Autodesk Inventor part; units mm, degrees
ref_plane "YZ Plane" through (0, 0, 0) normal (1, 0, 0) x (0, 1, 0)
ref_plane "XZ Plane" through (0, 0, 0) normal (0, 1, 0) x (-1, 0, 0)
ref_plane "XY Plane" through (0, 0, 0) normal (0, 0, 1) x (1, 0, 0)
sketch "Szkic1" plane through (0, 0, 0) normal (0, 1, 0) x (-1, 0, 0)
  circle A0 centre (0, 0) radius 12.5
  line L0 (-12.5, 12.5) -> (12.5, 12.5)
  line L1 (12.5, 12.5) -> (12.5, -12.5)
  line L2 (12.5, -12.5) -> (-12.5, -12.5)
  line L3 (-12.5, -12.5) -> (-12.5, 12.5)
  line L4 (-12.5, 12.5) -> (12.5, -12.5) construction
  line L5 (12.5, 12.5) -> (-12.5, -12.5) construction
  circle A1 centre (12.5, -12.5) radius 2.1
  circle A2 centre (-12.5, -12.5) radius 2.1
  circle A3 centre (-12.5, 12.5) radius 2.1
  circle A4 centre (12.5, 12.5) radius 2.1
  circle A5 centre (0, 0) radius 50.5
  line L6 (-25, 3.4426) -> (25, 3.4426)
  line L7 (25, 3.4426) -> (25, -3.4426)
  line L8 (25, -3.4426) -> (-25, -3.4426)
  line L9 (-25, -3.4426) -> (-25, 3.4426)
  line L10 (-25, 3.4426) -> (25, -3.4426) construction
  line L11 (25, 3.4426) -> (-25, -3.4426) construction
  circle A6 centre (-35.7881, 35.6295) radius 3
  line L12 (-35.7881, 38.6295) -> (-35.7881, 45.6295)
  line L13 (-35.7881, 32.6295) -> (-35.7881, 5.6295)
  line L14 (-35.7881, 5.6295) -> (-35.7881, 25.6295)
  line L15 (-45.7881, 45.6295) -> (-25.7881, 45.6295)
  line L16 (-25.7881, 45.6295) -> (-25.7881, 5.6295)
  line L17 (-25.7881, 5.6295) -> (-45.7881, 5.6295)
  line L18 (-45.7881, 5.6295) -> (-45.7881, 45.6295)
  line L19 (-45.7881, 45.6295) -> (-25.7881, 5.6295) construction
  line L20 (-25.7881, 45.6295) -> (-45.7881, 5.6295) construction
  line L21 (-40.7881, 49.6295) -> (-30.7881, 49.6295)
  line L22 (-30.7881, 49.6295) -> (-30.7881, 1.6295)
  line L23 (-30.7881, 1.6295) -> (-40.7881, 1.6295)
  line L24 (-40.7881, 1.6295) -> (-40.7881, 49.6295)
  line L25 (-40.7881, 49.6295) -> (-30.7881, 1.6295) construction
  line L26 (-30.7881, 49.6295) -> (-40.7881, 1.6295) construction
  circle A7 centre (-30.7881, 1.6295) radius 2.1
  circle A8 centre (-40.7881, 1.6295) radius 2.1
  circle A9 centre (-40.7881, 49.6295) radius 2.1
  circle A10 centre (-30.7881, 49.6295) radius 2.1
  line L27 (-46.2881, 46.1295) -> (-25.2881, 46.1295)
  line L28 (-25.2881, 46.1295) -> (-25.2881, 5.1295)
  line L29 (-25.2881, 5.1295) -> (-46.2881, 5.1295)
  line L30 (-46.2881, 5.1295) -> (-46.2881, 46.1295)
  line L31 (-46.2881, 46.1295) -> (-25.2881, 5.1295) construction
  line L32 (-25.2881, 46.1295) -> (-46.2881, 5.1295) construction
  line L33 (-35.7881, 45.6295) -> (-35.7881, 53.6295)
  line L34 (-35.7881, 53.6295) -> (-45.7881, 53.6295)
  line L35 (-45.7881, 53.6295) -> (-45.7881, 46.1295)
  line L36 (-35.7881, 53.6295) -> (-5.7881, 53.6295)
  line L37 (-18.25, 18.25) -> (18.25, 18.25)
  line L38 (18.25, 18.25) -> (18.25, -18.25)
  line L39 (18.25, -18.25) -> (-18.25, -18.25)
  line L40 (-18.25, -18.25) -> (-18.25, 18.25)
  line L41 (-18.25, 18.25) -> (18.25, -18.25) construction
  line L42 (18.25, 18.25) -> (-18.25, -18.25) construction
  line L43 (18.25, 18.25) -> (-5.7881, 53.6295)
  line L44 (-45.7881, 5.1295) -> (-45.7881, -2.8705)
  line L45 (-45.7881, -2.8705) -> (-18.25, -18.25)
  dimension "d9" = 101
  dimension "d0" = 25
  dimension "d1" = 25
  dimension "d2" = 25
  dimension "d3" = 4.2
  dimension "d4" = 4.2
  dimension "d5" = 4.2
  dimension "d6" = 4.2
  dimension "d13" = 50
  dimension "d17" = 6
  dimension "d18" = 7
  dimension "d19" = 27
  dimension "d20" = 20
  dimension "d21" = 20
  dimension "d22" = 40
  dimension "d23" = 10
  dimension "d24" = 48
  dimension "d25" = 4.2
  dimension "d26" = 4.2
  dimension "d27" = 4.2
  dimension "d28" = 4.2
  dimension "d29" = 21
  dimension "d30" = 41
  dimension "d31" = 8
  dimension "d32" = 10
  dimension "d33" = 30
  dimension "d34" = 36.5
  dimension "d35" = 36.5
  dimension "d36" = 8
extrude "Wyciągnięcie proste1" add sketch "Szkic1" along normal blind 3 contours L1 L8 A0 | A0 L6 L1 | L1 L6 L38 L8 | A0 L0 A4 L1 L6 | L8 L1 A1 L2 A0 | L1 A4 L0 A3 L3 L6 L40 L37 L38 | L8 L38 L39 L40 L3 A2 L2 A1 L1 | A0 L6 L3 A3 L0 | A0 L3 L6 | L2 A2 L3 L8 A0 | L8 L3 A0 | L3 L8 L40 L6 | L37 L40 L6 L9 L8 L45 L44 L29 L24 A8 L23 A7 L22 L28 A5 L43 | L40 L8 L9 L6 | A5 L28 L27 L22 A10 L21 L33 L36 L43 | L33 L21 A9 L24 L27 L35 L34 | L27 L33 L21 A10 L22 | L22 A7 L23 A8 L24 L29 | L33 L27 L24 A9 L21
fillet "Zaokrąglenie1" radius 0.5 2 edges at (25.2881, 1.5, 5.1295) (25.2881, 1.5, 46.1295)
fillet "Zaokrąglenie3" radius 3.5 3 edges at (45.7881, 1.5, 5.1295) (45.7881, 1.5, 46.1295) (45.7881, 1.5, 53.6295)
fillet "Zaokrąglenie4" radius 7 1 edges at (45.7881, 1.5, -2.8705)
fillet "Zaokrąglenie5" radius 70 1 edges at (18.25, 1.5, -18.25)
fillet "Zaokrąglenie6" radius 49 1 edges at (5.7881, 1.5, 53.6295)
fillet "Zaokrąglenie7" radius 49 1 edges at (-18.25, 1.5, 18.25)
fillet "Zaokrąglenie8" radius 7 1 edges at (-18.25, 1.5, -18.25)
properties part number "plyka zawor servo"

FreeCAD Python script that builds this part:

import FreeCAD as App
import Part
import Sketcher
from FreeCAD import Vector
Q = App.Units.Quantity


def edges_at(feature, points):
    """Names of the edges that pass closest to the given points."""
    edges = feature.Shape.Edges
    near = lambda p: min(range(len(edges)), key=lambda i: edges[i].distToShape(Part.Vertex(*p))[0])
    return sorted({f"Edge{near(p) + 1}" for p in points})

doc = App.newDocument("Part")
body = doc.addObject("PartDesign::Body", "Body")

# Sketch on XZ plane
sketch1 = body.newObject("Sketcher::SketchObject", "Sketch")
sketch1.AttachmentSupport = (doc.getObject("XZ_Plane"), [""])
sketch1.MapMode = "FlatFace"
sketch1.addGeometry(Part.LineSegment(Vector(-18.2, 18.2, 0), Vector(5.8, 53.6, 0)), False)
sketch1.addGeometry(Part.LineSegment(Vector(5.8, 53.6, 0), Vector(45.8, 53.6, 0)), False)
sketch1.addGeometry(Part.LineSegment(Vector(45.8, 53.6, 0), Vector(45.8, 46.1, 0)), False)
sketch1.addGeometry(Part.LineSegment(Vector(45.8, 46.1, 0), Vector(25.3, 46.1, 0)), False)
sketch1.addGeometry(Part.LineSegment(Vector(25.3, 46.1, 0), Vector(25.3, 5.1, 0)), False)
sketch1.addGeometry(Part.LineSegment(Vector(25.3, 5.1, 0), Vector(45.8, 5.1, 0)), False)
sketch1.addGeometry(Part.LineSegment(Vector(45.8, 5.1, 0), Vector(45.8, -2.9, 0)), False)
sketch1.addGeometry(Part.LineSegment(Vector(45.8, -2.9, 0), Vector(18.2, -18.2, 0)), False)
sketch1.addGeometry(Part.LineSegment(Vector(18.2, -18.2, 0), Vector(-18.2, -18.2, 0)), False)
sketch1.addGeometry(Part.LineSegment(Vector(-18.2, -18.2, 0), Vector(-18.2, 18.2, 0)), False)
sketch1.addGeometry(Part.Circle(Vector(0, 0, 0), Vector(0, 0, 1), 12.5), False)
sketch1.addGeometry(Part.Circle(Vector(-12.5, -12.5, 0), Vector(0, 0, 1), 2.1), False)
sketch1.addGeometry(Part.Circle(Vector(-12.5, 12.5, 0), Vector(0, 0, 1), 2.1), False)
sketch1.addGeometry(Part.Circle(Vector(12.5, 12.5, 0), Vector(0, 0, 1), 2.1), False)
sketch1.addGeometry(Part.Circle(Vector(12.5, -12.5, 0), Vector(0, 0, 1), 2.1), False)
sketch1.addGeometry(Part.Circle(Vector(40.8, 1.6, 0), Vector(0, 0, 1), 2.1), False)
sketch1.addGeometry(Part.Circle(Vector(30.8, 1.6, 0), Vector(0, 0, 1), 2.1), False)
sketch1.addGeometry(Part.Circle(Vector(30.8, 49.6, 0), Vector(0, 0, 1), 2.1), False)
sketch1.addGeometry(Part.Circle(Vector(40.8, 49.6, 0), Vector(0, 0, 1), 2.1), False)
sketch1.addConstraint(Sketcher.Constraint("Coincident", 0, 2, 1, 1))
sketch1.addConstraint(Sketcher.Constraint("Coincident", 1, 2, 2, 1))
sketch1.addConstraint(Sketcher.Constraint("Coincident", 2, 2, 3, 1))
sketch1.addConstraint(Sketcher.Constraint("Coincident", 3, 2, 4, 1))
sketch1.addConstraint(Sketcher.Constraint("Coincident", 4, 2, 5, 1))
sketch1.addConstraint(Sketcher.Constraint("Coincident", 5, 2, 6, 1))
sketch1.addConstraint(Sketcher.Constraint("Coincident", 6, 2, 7, 1))
sketch1.addConstraint(Sketcher.Constraint("Coincident", 7, 2, 8, 1))
sketch1.addConstraint(Sketcher.Constraint("Coincident", 8, 2, 9, 1))
sketch1.addConstraint(Sketcher.Constraint("Coincident", 9, 2, 0, 1))
sketch1.addConstraint(Sketcher.Constraint("Horizontal", 1))
sketch1.addConstraint(Sketcher.Constraint("Vertical", 2))
sketch1.addConstraint(Sketcher.Constraint("Horizontal", 3))
sketch1.addConstraint(Sketcher.Constraint("Vertical", 4))
sketch1.addConstraint(Sketcher.Constraint("Horizontal", 5))
sketch1.addConstraint(Sketcher.Constraint("Vertical", 6))
sketch1.addConstraint(Sketcher.Constraint("Horizontal", 8))
sketch1.addConstraint(Sketcher.Constraint("Vertical", 9))
sketch1.addConstraint(Sketcher.Constraint("Coincident", 10, 3, -1, 1))
sketch1.addConstraint(Sketcher.Constraint("Equal", 11, 12))
sketch1.addConstraint(Sketcher.Constraint("Equal", 12, 13))
sketch1.addConstraint(Sketcher.Constraint("Equal", 13, 14))
sketch1.addConstraint(Sketcher.Constraint("Equal", 14, 15))
sketch1.addConstraint(Sketcher.Constraint("Equal", 15, 16))
sketch1.addConstraint(Sketcher.Constraint("Equal", 16, 17))
sketch1.addConstraint(Sketcher.Constraint("Equal", 17, 18))
sketch1.addConstraint(Sketcher.Constraint("Symmetric", 11, 3, 13, 3, -1, 1))
sketch1.addConstraint(Sketcher.Constraint("Symmetric", 12, 3, 14, 3, -1, 1))
sketch1.addConstraint(Sketcher.Constraint("Symmetric", 7, 2, 9, 2, -1, 1))
sketch1.addConstraint(Sketcher.Constraint("Symmetric", 12, 3, 13, 3, -2))
sketch1.addConstraint(Sketcher.Constraint("Horizontal", 15, 3, 16, 3))
sketch1.addConstraint(Sketcher.Constraint("Horizontal", 17, 3, 18, 3))
sketch1.addConstraint(Sketcher.Constraint("Vertical", 16, 3, 17, 3))
sketch1.addConstraint(Sketcher.Constraint("Vertical", 15, 3, 18, 3))
sketch1.addConstraint(Sketcher.Constraint("Vertical", 2, 2, 5, 2))
sketch1.addConstraint(Sketcher.Constraint("Equal", 8, 9))
sketch1.addConstraint(Sketcher.Constraint("Diameter", 10, Q("25 mm")))
sketch1.addConstraint(Sketcher.Constraint("Diameter", 11, Q("4.2 mm")))
sketch1.addConstraint(Sketcher.Constraint("DistanceX", 1, 1, 1, 2, Q("40 mm")))
sketch1.addConstraint(Sketcher.Constraint("DistanceY", 4, 2, 4, 1, Q("41 mm")))
sketch1.addConstraint(Sketcher.Constraint("DistanceY", 6, 2, 6, 1, Q("8 mm")))
sketch1.addConstraint(Sketcher.Constraint("DistanceX", 8, 2, 8, 1, Q("36.5 mm")))
sketch1.addConstraint(Sketcher.Constraint("DistanceY", 11, 3, 12, 3, Q("25 mm")))
sketch1.addConstraint(Sketcher.Constraint("DistanceX", 12, 3, 13, 3, Q("25 mm")))
sketch1.addConstraint(Sketcher.Constraint("DistanceX", 16, 3, 15, 3, Q("10 mm")))
sketch1.addConstraint(Sketcher.Constraint("DistanceY", 16, 3, 17, 3, Q("48 mm")))
sketch1.addConstraint(Sketcher.Constraint("DistanceX", 0, 2, 17, 3, Q("25 mm")))
sketch1.addConstraint(Sketcher.Constraint("DistanceX", 3, 2, 3, 1, Q("20.5 mm")))
sketch1.addConstraint(Sketcher.Constraint("DistanceY", 2, 2, 2, 1, Q("7.5 mm")))
sketch1.addConstraint(Sketcher.Constraint("DistanceY", 17, 3, 0, 2, Q("4 mm")))
sketch1.addConstraint(Sketcher.Constraint("Distance", 0, Q("42.773 mm")))
sketch1.addConstraint(Sketcher.Constraint("DistanceX", -1, 1, 15, 3, Q("40.788 mm")))
pad1 = body.newObject("PartDesign::Pad", "Pad")
pad1.Profile = sketch1
pad1.Length = 3
pad1.Reversed = True
doc.recompute()

fillet = body.newObject("PartDesign::Fillet", "Fillet")
fillet.Base = (pad1, edges_at(pad1, [(25.288, 1.5, 5.13), (25.288, 1.5, 46.13)]))
fillet.Radius = 0.5
doc.recompute()

fillet2 = body.newObject("PartDesign::Fillet", "Fillet001")
fillet2.Base = (fillet, edges_at(fillet, [(45.788, 1.5, 5.13), (45.788, 1.5, 46.13), (45.788, 1.5, 53.63)]))
fillet2.Radius = 3.5
doc.recompute()

fillet3 = body.newObject("PartDesign::Fillet", "Fillet002")
fillet3.Base = (fillet2, edges_at(fillet2, [(45.788, 1.5, -2.87)]))
fillet3.Radius = 7
doc.recompute()

fillet4 = body.newObject("PartDesign::Fillet", "Fillet003")
fillet4.Base = (fillet3, edges_at(fillet3, [(18.25, 1.5, -18.25)]))
fillet4.Radius = 70
doc.recompute()

fillet5 = body.newObject("PartDesign::Fillet", "Fillet004")
fillet5.Base = (fillet4, edges_at(fillet4, [(5.788, 1.5, 53.63)]))
fillet5.Radius = 49
doc.recompute()

fillet6 = body.newObject("PartDesign::Fillet", "Fillet005")
fillet6.Base = (fillet5, edges_at(fillet5, [(-18.25, 1.5, 18.25)]))
fillet6.Radius = 49
doc.recompute()

fillet7 = body.newObject("PartDesign::Fillet", "Fillet006")
fillet7.Base = (fillet6, edges_at(fillet6, [(-18.25, 1.5, -18.25)]))
fillet7.Radius = 7

doc.recompute()
